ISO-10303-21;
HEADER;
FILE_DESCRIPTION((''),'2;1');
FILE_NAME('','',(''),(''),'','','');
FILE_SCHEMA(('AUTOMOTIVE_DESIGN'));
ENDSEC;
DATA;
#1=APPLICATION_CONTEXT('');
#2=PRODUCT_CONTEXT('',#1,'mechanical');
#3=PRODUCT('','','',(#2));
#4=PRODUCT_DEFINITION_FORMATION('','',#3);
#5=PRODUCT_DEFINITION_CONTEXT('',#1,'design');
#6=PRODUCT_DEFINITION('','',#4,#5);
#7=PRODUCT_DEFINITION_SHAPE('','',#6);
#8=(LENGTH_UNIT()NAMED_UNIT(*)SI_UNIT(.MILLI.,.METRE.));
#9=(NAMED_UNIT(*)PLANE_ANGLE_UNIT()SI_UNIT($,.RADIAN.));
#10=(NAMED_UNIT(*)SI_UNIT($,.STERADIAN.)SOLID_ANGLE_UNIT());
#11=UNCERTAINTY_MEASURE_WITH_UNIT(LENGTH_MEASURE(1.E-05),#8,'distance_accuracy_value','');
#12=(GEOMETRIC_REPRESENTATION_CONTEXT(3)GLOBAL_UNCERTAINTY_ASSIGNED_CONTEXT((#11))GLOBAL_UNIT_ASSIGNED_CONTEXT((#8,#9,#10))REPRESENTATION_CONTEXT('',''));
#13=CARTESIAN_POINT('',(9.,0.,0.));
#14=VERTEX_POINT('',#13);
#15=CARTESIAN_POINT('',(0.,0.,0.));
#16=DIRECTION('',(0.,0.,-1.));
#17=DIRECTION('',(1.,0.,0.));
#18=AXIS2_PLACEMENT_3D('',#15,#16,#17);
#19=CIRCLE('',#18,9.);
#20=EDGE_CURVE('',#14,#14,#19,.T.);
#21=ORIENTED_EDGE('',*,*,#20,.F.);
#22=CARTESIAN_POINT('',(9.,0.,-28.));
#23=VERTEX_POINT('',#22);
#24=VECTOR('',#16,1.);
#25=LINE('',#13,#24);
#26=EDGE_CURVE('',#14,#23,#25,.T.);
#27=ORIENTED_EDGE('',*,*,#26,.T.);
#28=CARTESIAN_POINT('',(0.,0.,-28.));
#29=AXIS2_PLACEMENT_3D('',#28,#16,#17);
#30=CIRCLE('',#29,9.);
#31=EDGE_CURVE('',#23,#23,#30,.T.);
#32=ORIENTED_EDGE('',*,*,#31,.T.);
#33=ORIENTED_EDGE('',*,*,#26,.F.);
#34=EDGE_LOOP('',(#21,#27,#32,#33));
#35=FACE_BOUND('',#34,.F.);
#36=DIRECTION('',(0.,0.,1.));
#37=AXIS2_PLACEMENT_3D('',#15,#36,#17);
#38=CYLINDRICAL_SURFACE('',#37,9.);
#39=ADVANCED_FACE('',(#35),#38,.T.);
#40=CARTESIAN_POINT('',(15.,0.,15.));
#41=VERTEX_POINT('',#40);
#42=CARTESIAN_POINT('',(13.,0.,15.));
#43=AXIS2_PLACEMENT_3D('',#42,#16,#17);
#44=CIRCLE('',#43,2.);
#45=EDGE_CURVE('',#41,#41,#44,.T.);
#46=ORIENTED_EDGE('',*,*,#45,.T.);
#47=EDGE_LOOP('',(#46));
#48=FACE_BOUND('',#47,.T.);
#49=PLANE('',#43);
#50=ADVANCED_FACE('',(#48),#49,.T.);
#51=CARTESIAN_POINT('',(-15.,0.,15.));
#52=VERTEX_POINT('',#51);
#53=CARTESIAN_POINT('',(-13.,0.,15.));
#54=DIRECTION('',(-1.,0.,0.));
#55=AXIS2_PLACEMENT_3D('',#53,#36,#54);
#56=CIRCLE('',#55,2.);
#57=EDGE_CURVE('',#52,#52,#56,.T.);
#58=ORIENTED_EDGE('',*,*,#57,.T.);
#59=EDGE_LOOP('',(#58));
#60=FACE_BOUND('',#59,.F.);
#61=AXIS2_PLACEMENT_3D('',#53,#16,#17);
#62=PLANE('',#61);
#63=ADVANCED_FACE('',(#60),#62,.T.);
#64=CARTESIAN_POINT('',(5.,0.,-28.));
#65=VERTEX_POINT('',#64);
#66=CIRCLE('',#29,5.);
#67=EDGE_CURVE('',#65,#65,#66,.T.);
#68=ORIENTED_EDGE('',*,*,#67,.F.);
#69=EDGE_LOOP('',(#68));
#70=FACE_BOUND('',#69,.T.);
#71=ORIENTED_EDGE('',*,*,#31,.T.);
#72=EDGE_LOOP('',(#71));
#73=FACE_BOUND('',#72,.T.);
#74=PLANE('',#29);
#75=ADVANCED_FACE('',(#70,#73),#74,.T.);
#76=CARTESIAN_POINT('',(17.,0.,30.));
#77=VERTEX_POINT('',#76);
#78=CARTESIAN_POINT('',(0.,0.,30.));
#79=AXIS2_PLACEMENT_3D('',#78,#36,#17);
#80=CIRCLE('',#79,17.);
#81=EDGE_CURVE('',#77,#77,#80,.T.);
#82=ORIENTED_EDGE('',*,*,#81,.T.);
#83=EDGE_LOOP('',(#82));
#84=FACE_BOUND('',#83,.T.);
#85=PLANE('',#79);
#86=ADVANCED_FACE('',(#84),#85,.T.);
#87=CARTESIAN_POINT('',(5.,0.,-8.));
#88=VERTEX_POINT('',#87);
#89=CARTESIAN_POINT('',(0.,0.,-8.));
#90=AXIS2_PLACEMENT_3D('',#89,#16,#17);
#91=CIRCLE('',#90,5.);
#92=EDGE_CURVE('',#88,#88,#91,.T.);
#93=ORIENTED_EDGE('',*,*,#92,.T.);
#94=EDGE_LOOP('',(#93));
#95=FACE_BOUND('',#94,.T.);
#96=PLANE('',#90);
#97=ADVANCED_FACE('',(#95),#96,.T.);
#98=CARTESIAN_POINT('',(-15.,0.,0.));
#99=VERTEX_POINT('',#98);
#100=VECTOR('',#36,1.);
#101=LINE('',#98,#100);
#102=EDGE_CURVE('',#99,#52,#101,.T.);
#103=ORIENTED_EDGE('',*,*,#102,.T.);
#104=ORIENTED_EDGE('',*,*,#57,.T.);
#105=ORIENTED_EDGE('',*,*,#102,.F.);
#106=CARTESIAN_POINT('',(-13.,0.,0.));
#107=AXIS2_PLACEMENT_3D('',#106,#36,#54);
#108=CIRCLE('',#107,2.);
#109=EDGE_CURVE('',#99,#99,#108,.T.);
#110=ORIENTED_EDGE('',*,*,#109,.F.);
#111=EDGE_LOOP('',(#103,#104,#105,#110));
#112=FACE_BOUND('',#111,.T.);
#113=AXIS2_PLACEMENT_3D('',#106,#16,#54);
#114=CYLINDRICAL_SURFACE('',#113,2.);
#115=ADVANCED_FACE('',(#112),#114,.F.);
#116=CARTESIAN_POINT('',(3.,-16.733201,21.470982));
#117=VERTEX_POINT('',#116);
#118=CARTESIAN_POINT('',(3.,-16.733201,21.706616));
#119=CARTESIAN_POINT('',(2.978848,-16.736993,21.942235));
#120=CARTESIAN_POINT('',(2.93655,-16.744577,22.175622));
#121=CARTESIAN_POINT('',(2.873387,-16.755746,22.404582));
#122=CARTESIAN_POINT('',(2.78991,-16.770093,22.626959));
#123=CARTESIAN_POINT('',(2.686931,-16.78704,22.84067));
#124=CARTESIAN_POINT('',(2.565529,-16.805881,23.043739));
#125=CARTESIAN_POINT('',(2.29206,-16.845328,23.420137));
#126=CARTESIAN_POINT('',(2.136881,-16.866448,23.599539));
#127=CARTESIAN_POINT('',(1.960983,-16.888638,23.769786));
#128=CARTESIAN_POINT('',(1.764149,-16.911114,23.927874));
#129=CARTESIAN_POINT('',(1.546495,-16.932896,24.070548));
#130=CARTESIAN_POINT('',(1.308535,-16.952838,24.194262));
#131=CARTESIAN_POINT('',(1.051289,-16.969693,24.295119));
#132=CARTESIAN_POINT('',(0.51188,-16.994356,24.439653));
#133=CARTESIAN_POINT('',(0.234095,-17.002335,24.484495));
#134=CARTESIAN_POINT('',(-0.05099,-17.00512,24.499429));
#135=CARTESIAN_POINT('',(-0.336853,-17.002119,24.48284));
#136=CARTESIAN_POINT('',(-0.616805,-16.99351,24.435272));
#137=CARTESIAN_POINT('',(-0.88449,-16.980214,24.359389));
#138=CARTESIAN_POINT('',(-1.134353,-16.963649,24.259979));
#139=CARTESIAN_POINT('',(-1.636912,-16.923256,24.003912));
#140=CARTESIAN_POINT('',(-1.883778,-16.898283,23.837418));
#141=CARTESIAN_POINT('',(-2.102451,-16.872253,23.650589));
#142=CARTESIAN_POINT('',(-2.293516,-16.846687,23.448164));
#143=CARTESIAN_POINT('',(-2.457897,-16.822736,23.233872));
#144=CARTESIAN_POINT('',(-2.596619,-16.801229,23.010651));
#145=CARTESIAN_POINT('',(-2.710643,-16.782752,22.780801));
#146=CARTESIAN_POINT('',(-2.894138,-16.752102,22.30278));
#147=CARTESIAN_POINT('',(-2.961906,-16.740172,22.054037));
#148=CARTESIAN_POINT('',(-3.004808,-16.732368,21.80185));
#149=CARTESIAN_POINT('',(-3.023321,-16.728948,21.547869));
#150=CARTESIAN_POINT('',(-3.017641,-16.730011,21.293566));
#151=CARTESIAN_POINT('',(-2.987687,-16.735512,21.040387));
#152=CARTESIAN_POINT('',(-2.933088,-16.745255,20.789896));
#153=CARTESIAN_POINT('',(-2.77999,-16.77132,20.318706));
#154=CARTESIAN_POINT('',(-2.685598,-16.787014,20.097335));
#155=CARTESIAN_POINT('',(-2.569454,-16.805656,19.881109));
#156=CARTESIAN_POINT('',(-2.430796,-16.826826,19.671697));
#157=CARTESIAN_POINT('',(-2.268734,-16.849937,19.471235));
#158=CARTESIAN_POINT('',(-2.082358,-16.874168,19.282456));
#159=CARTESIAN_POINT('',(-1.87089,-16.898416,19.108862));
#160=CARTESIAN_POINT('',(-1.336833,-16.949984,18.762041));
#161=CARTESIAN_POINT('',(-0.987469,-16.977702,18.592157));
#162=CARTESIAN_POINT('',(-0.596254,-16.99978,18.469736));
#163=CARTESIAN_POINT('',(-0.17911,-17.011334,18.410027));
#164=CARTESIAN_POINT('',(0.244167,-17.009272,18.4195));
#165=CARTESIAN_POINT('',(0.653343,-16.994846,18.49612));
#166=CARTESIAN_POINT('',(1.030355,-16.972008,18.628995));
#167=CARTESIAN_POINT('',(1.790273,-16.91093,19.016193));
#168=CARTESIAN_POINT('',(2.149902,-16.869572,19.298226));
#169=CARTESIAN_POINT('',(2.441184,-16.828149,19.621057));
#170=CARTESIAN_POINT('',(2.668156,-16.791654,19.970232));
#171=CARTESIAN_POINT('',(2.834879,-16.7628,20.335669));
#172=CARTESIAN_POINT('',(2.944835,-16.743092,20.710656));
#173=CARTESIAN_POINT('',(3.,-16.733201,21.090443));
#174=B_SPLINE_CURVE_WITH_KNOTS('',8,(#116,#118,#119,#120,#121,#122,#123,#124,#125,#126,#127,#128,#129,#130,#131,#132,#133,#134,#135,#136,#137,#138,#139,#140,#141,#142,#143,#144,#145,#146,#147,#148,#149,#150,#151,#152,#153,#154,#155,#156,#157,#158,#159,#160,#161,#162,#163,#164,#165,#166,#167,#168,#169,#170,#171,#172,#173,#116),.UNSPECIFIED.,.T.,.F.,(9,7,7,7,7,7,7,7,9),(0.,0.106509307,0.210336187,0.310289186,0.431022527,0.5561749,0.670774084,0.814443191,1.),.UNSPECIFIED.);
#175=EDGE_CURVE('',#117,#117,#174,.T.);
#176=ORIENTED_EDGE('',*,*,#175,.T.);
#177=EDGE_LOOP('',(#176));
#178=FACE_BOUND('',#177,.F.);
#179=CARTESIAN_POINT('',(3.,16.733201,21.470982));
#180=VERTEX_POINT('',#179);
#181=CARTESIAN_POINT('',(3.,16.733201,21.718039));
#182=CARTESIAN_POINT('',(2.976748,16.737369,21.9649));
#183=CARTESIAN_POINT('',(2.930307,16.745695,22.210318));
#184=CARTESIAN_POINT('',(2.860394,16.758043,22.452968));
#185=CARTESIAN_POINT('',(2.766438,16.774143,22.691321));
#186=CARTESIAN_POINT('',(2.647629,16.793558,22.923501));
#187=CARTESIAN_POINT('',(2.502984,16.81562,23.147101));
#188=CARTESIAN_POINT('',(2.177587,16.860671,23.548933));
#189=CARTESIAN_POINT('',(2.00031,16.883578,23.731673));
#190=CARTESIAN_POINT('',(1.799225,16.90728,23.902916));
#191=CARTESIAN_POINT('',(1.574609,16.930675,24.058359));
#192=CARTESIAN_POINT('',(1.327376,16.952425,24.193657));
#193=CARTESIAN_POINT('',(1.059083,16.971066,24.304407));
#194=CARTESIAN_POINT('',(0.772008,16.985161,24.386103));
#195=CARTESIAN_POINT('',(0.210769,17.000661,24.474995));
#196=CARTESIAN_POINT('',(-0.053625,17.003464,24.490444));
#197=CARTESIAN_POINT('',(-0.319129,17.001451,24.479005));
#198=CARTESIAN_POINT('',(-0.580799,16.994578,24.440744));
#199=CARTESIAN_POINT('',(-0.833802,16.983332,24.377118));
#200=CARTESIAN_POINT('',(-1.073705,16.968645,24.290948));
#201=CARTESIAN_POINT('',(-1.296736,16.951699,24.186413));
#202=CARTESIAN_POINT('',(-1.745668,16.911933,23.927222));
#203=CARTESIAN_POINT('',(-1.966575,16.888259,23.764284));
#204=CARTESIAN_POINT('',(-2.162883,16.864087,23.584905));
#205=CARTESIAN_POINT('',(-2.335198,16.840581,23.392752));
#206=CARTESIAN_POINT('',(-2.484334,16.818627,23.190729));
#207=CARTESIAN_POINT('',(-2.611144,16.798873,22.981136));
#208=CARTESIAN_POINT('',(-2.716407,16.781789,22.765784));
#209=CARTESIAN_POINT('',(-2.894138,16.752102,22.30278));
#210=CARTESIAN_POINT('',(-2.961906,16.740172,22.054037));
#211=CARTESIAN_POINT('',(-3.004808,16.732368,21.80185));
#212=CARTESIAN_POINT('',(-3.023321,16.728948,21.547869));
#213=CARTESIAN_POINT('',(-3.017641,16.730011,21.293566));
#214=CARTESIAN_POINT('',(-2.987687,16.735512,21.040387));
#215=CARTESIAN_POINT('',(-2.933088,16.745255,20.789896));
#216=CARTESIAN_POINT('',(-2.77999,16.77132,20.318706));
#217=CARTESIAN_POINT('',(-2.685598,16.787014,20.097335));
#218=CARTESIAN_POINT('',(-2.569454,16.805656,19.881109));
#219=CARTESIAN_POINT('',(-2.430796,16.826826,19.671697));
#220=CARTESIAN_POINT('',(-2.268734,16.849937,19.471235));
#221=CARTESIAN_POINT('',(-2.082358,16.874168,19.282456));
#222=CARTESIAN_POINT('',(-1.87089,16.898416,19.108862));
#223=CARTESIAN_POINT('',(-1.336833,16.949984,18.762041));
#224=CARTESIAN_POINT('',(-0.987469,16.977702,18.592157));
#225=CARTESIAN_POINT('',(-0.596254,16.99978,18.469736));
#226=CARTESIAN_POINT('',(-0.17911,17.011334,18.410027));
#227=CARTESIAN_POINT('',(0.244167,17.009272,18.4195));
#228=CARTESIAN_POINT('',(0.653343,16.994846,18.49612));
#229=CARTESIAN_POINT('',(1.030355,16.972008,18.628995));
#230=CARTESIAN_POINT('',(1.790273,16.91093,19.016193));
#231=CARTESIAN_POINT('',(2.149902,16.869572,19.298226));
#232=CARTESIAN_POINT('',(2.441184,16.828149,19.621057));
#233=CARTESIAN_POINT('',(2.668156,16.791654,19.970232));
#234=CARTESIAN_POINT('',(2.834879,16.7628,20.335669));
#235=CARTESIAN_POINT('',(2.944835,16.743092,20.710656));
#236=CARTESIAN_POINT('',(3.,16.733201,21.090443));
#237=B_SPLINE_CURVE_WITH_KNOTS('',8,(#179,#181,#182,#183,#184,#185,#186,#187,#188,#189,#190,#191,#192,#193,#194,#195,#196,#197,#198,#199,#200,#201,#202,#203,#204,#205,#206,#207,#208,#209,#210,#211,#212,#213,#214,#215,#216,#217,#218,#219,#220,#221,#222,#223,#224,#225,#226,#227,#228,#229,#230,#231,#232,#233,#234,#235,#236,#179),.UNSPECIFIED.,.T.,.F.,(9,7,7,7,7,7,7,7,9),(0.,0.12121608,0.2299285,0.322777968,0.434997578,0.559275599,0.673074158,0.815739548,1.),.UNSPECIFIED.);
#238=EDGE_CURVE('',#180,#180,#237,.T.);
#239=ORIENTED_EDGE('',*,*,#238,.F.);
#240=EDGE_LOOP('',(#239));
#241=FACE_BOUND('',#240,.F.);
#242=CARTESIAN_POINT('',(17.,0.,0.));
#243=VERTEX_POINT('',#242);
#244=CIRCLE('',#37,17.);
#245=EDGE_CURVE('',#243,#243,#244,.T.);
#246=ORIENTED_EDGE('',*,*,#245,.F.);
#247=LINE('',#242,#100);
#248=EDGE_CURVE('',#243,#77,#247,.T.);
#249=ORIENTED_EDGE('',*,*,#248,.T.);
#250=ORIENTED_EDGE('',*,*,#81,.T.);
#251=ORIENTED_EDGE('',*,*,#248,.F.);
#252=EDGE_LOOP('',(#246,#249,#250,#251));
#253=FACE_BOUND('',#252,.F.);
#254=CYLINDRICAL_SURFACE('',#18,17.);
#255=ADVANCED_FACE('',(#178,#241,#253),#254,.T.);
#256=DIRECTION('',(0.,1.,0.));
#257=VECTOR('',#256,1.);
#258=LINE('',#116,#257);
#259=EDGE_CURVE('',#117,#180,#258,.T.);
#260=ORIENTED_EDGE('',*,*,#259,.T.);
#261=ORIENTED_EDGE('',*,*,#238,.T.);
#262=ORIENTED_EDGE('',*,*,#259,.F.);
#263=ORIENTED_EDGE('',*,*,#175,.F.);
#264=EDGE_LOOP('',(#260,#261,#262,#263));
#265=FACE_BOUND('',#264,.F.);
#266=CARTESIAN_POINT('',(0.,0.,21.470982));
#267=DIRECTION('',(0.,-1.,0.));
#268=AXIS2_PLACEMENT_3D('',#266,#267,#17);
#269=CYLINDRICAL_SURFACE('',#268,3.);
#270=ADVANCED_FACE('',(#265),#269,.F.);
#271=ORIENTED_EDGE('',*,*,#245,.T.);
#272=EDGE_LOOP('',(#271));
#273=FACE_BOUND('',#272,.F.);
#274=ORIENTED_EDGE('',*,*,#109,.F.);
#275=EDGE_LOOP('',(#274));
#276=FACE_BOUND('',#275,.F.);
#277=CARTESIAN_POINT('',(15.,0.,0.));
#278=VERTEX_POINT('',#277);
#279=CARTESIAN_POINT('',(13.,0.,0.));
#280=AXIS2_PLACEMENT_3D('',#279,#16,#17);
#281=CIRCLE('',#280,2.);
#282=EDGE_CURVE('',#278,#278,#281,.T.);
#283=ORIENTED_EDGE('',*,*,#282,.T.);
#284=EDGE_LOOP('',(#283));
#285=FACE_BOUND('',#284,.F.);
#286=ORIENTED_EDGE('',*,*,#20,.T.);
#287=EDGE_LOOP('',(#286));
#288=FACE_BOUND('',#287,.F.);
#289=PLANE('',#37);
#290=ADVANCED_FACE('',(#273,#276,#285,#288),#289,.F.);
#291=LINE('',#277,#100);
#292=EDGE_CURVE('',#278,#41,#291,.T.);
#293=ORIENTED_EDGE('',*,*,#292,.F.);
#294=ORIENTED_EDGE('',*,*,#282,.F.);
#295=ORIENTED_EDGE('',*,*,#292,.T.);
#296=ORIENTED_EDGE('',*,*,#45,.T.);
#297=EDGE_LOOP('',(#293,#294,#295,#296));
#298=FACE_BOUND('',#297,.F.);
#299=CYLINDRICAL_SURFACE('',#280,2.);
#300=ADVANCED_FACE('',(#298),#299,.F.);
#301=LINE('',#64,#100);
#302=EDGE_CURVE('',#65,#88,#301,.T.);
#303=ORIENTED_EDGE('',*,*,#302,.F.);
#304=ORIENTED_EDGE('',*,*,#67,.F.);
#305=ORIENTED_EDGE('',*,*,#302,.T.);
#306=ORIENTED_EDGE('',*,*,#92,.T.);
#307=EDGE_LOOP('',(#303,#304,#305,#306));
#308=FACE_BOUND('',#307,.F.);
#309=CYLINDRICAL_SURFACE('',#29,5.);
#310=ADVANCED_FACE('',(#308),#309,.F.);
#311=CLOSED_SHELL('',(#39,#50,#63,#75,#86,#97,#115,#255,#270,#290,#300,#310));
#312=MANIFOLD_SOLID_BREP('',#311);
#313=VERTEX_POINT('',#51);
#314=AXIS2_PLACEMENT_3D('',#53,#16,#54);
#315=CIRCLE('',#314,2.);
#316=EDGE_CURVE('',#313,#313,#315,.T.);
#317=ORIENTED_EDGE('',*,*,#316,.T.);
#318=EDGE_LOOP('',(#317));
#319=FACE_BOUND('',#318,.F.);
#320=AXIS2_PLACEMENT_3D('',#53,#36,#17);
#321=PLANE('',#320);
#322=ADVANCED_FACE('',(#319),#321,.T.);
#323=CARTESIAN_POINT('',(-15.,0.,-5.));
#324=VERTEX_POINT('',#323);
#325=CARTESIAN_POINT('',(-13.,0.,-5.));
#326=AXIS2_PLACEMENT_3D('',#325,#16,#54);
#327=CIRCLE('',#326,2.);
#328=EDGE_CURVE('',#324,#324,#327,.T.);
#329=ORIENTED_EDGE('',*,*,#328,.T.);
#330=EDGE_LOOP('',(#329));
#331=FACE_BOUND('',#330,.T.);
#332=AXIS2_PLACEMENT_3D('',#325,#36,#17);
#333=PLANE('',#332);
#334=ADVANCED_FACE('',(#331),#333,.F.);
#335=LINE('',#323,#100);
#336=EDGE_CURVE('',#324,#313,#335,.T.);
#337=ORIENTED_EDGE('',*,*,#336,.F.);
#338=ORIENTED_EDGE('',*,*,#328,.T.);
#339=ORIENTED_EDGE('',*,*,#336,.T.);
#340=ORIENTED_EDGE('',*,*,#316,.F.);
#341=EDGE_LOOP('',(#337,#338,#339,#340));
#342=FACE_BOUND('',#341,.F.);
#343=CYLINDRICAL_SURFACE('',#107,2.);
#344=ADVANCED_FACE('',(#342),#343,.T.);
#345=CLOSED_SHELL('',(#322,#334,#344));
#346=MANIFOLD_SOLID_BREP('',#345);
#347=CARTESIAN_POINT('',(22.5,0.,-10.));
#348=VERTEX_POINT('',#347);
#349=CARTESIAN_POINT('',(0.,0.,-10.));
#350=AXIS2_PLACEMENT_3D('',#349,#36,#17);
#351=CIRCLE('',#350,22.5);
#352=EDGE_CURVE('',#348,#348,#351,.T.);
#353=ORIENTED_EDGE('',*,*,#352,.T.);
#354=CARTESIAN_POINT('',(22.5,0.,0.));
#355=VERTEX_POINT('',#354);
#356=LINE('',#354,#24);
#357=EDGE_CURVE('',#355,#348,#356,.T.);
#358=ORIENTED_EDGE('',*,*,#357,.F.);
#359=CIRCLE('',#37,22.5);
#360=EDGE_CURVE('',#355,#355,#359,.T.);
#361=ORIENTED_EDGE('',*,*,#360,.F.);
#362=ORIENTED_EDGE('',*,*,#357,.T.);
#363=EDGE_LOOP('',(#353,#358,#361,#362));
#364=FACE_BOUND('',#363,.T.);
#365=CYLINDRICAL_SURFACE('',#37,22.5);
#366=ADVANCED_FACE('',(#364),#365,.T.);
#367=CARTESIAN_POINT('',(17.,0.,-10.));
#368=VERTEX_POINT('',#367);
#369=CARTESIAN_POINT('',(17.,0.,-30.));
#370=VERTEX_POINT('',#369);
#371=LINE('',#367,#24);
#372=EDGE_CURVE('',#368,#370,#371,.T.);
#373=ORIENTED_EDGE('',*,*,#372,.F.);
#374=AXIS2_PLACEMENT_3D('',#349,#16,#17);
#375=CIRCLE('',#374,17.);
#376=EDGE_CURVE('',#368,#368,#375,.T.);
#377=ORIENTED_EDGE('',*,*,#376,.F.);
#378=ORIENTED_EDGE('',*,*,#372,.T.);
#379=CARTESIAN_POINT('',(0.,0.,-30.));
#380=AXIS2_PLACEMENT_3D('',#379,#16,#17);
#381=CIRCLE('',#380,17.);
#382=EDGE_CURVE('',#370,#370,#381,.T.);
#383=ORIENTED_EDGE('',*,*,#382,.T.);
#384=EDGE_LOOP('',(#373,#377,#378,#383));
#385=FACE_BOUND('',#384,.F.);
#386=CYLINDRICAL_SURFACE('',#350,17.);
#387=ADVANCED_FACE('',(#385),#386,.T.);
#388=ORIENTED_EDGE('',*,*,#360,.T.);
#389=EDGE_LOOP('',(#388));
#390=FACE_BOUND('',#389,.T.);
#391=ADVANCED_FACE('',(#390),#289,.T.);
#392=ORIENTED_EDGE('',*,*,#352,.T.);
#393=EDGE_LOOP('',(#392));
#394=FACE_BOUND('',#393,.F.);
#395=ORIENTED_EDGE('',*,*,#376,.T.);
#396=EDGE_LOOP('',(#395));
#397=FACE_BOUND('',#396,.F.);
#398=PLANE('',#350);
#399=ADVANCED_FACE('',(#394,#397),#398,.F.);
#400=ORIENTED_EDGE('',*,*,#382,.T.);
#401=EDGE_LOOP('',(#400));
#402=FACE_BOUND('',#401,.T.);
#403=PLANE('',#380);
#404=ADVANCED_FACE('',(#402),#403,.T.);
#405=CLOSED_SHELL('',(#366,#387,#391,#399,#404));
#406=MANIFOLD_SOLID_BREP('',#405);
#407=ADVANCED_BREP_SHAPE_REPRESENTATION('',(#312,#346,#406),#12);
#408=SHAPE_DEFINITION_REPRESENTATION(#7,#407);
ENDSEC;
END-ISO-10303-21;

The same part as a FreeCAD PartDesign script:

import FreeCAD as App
import Part
import Sketcher

V = App.Vector
Q = App.Units.Quantity

doc = App.newDocument("Part")
body = doc.addObject("PartDesign::Body", "Body")

# Sketch on XY plane
sketch1 = body.newObject("Sketcher::SketchObject", "Sketch")
sketch1.AttachmentSupport = (doc.getObject("XY_Plane"), [""])
sketch1.MapMode = "FlatFace"
sketch1.addGeometry(Part.Circle(V(0, 0, 0), V(0, 0, 1), 17), False)
sketch1.addConstraint([
    Sketcher.Constraint("Coincident", 0, 3, -1, 1),
    Sketcher.Constraint("Diameter", 0, Q("34 mm")),
])
pad1 = body.newObject("PartDesign::Pad", "Pad")
pad1.Profile = sketch1
pad1.Length = 30

# Sketch on XY plane
sketch2 = body.newObject("Sketcher::SketchObject", "Sketch001")
sketch2.AttachmentSupport = (doc.getObject("XY_Plane"), [""])
sketch2.MapMode = "FlatFace"
sketch2.addGeometry(Part.Circle(V(0, 0, 0), V(0, 0, 1), 9), False)
sketch2.addConstraint([
    Sketcher.Constraint("Coincident", 0, 3, -1, 1),
    Sketcher.Constraint("Diameter", 0, Q("18 mm")),
])
pad2 = body.newObject("PartDesign::Pad", "Pad001")
pad2.Profile = sketch2
pad2.Length = 28
pad2.Reversed = True

# Sketch on XY plane
sketch3 = body.newObject("Sketcher::SketchObject", "Sketch002")
sketch3.AttachmentSupport = (doc.getObject("XY_Plane"), [""])
sketch3.MapMode = "FlatFace"
sketch3.addGeometry(Part.Circle(V(13, 0, 0), V(0, 0, 1), 2), False)
sketch3.addConstraint([
    Sketcher.Constraint("PointOnObject", 0, 3, -1),
    Sketcher.Constraint("Diameter", 0, Q("4 mm")),
    Sketcher.Constraint("DistanceX", -1, 1, 0, 3, Q("13 mm")),
])
pocket1 = body.newObject("PartDesign::Pocket", "Pocket")
pocket1.Profile = sketch3
pocket1.Length = 15
pocket1.Reversed = True
doc.recompute()

mirrored = body.newObject("PartDesign::Mirrored", "Mirrored")
mirrored.Originals = [pocket1]
mirrored.MirrorPlane = (doc.getObject("YZ_Plane"), [""])
body.Tip = mirrored

# Sketch on XY plane
sketch4 = body.newObject("Sketcher::SketchObject", "Sketch003")
sketch4.AttachmentSupport = (doc.getObject("XY_Plane"), [""])
sketch4.MapMode = "FlatFace"
sketch4.AttachmentOffset = App.Placement(V(0, 0, -28), App.Rotation())
sketch4.addGeometry(Part.Circle(V(0, 0, 0), V(0, 0, 1), 5), False)
sketch4.addConstraint([
    Sketcher.Constraint("Coincident", 0, 3, -1, 1),
    Sketcher.Constraint("Diameter", 0, Q("10 mm")),
])
pocket2 = body.newObject("PartDesign::Pocket", "Pocket001")
pocket2.Profile = sketch4
pocket2.Length = 20
pocket2.Reversed = True

# Sketch on XZ plane
sketch5 = body.newObject("Sketcher::SketchObject", "Sketch004")
sketch5.AttachmentSupport = (doc.getObject("XZ_Plane"), [""])
sketch5.MapMode = "FlatFace"
sketch5.addGeometry(Part.Circle(V(0, 21.5, 0), V(0, 0, 1), 3), False)
sketch5.addConstraint([
    Sketcher.Constraint("PointOnObject", 0, 3, -2),
    Sketcher.Constraint("Diameter", 0, Q("6 mm")),
    Sketcher.Constraint("DistanceY", -1, 1, 0, 3, Q("21.470982 mm")),
])
pocket3 = body.newObject("PartDesign::Pocket", "Pocket002")
pocket3.Profile = sketch5
pocket3.Type = "ThroughAll"
pocket3.Midplane = True
body2 = doc.addObject("PartDesign::Body", "Body001")

# Sketch on XY plane
sketch6 = body2.newObject("Sketcher::SketchObject", "Sketch005")
sketch6.AttachmentSupport = (doc.getObject("XY_Plane001"), [""])
sketch6.MapMode = "FlatFace"
sketch6.addGeometry(Part.Circle(V(13, 0, 0), V(0, 0, 1), 2), False)
sketch6.addConstraint([
    Sketcher.Constraint("PointOnObject", 0, 3, -1),
    Sketcher.Constraint("Diameter", 0, Q("4 mm")),
    Sketcher.Constraint("DistanceX", -1, 1, 0, 3, Q("13 mm")),
])
pad3 = body2.newObject("PartDesign::Pad", "Pad002")
pad3.Profile = sketch6
pad3.Type = "TwoLengths"
pad3.Length = 15
pad3.Length2 = 5
body3 = doc.addObject("PartDesign::Body", "Body002")
doc.recompute()

mirroring = doc.addObject("Part::Mirroring", "Mirroring")
mirroring.Source = body2
mirroring.Base = V(0, 0, 0)
mirroring.Normal = V(1, 0, 0)
body3.BaseFeature = mirroring
doc.recompute()
body4 = doc.addObject("PartDesign::Body", "Body003")

# Sketch on XY plane
sketch7 = body4.newObject("Sketcher::SketchObject", "Sketch006")
sketch7.AttachmentSupport = (doc.getObject("XY_Plane003"), [""])
sketch7.MapMode = "FlatFace"
sketch7.addGeometry(Part.Circle(V(0, 0, 0), V(0, 0, 1), 22), False)
sketch7.addConstraint([
    Sketcher.Constraint("Coincident", 0, 3, -1, 1),
    Sketcher.Constraint("Diameter", 0, Q("45 mm")),
])
pad4 = body4.newObject("PartDesign::Pad", "Pad003")
pad4.Profile = sketch7
pad4.Length = 10
pad4.Reversed = True

# Sketch on XY plane
sketch8 = body4.newObject("Sketcher::SketchObject", "Sketch007")
sketch8.AttachmentSupport = (doc.getObject("XY_Plane003"), [""])
sketch8.MapMode = "FlatFace"
sketch8.AttachmentOffset = App.Placement(V(0, 0, -10), App.Rotation())
sketch8.addGeometry(Part.Circle(V(0, 0, 0), V(0, 0, 1), 17), False)
sketch8.addConstraint([
    Sketcher.Constraint("Coincident", 0, 3, -1, 1),
    Sketcher.Constraint("Diameter", 0, Q("34 mm")),
])
pad5 = body4.newObject("PartDesign::Pad", "Pad004")
pad5.Profile = sketch8
pad5.Length = 20
pad5.Reversed = True
body2.Visibility = False
mirroring.Visibility = False

doc.recompute()
